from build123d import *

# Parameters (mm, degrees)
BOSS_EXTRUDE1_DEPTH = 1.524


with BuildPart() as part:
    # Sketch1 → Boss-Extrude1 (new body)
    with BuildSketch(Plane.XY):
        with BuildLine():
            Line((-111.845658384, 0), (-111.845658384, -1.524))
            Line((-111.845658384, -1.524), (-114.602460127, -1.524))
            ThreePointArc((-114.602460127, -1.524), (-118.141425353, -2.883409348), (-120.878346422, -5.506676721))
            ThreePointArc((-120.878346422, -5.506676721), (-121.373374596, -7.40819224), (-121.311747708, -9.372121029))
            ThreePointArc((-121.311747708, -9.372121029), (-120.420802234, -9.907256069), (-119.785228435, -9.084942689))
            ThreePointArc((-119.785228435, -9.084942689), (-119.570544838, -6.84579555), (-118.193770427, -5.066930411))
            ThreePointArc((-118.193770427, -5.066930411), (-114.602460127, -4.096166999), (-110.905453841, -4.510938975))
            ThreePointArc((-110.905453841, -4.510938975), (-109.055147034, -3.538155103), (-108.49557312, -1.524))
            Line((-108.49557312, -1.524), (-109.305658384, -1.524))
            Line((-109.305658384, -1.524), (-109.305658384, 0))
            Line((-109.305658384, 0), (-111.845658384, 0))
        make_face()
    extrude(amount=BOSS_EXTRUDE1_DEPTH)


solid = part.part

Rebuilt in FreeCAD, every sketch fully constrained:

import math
import FreeCAD as App
import Part
import Sketcher

V = App.Vector
Q = App.Units.Quantity

doc = App.newDocument("Part")
body = doc.addObject("PartDesign::Body", "Body")

# Sketch on XY plane
sketch1 = body.newObject("Sketcher::SketchObject", "Sketch")
sketch1.AttachmentSupport = (doc.getObject("XY_Plane"), [""])
sketch1.MapMode = "FlatFace"
sketch1.addGeometry([
    Part.LineSegment(V(-111.8, 0, 0), V(-111.8, -1.5, 0)),  # 0
    Part.LineSegment(V(-111.8, -1.5, 0), V(-114.6, -1.5, 0)),  # 1
    Part.ArcOfCircle(Part.Circle(V(-113, -11, 0), V(0, 0, 1), 9.6), math.radians(100), math.radians(145)),  # 2
    Part.ArcOfCircle(Part.Circle(V(-114.5, -8.2, 0), V(0, 0, 1), 6.9), math.radians(157), math.radians(190)),  # 3
    Part.ArcOfCircle(Part.Circle(V(-120.6, -9.1, 0), V(0, 0, 1), 0.8), math.radians(-163), math.radians(4)),  # 4
    Part.ArcOfCircle(Part.Circle(V(-115.8, -8.3, 0), V(0, 0, 1), 4), math.radians(126), math.radians(191)),  # 5
    Part.ArcOfCircle(Part.Circle(V(-113.8, -14, 0), V(0, 0, 1), 10), math.radians(73), math.radians(116)),  # 6
    Part.ArcOfCircle(Part.Circle(V(-111.1, -1.9, 0), V(0, 0, 1), 2.6), math.radians(-86), math.radians(8)),  # 7
    Part.LineSegment(V(-108.5, -1.5, 0), V(-109.3, -1.5, 0)),  # 8
    Part.LineSegment(V(-109.3, -1.5, 0), V(-109.3, 0, 0)),  # 9
    Part.LineSegment(V(-109.3, 0, 0), V(-111.8, 0, 0)),  # 10
], False)
sketch1.addConstraint([
    Sketcher.Constraint("Coincident", 0, 2, 1, 1),
    Sketcher.Constraint("Coincident", 1, 2, 2, 1),
    Sketcher.Constraint("Coincident", 2, 2, 3, 1),
    Sketcher.Constraint("Coincident", 3, 2, 4, 1),
    Sketcher.Constraint("Coincident", 4, 2, 5, 2),
    Sketcher.Constraint("Coincident", 5, 1, 6, 2),
    Sketcher.Constraint("Coincident", 6, 1, 7, 1),
    Sketcher.Constraint("Coincident", 7, 2, 8, 1),
    Sketcher.Constraint("Coincident", 8, 2, 9, 1),
    Sketcher.Constraint("Coincident", 9, 2, 10, 1),
    Sketcher.Constraint("Coincident", 10, 2, 0, 1),
    Sketcher.Constraint("Vertical", 0),
    Sketcher.Constraint("Horizontal", 1),
    Sketcher.Constraint("Horizontal", 8),
    Sketcher.Constraint("Vertical", 9),
    Sketcher.Constraint("Horizontal", 10),
    Sketcher.Constraint("PointOnObject", 9, 2, -1),
    Sketcher.Constraint("Horizontal", 1, 2, 7, 2),
    Sketcher.Constraint("DistanceX", 10, 2, 10, 1, Q("0.1 in")),
    Sketcher.Constraint("DistanceY", 0, 2, 0, 1, Q("0.06 in")),
    Sketcher.Constraint("Radius", 6, Q("9.959901 mm")),
    Sketcher.Constraint("Radius", 3, Q("6.89255 mm")),
    Sketcher.Constraint("Radius", 7, Q("2.634962 mm")),
    Sketcher.Constraint("DistanceX", 1, 2, 1, 1, Q("2.756802 mm")),
    Sketcher.Constraint("Radius", 2, Q("9.601565 mm")),
    Sketcher.Constraint("Radius", 4, Q("0.782005 mm")),
    Sketcher.Constraint("Radius", 5, Q("4.048135 mm")),
    Sketcher.Constraint("DistanceX", 4, 3, 5, 3, Q("4.758501 mm")),
    Sketcher.Constraint("DistanceX", 5, 3, 7, 3, Q("4.701 mm")),
    Sketcher.Constraint("DistanceY", 5, 3, 7, 3, Q("6.4529 mm")),
    Sketcher.Constraint("DistanceX", 1, 2, 2, 3, Q("1.605698 mm")),
    Sketcher.Constraint("DistanceX", 2, 2, 3, 3, Q("6.354602 mm")),
    Sketcher.Constraint("DistanceX", 3, 2, 2, 2, Q("0.433401 mm")),
    Sketcher.Constraint("DistanceY", 4, 3, 5, 1, Q("4.071802 mm")),
    Sketcher.Constraint("DistanceX", 8, 2, 8, 1, Q("0.810085 mm")),
    Sketcher.Constraint("DistanceX", 4, 3, -1, 1, Q("120.565382 mm")),
    Sketcher.Constraint("DistanceY", 4, 3, -1, 1, Q("9.138732 mm")),
    Sketcher.Constraint("DistanceY", 5, 3, -1, 1, Q("8.336511 mm")),
    Sketcher.Constraint("DistanceY", 6, 1, -1, 1, Q("4.510939 mm")),
])
pad1 = body.newObject("PartDesign::Pad", "Pad")
pad1.Profile = sketch1
pad1.Length = Q("0.06 in")

doc.recompute()
